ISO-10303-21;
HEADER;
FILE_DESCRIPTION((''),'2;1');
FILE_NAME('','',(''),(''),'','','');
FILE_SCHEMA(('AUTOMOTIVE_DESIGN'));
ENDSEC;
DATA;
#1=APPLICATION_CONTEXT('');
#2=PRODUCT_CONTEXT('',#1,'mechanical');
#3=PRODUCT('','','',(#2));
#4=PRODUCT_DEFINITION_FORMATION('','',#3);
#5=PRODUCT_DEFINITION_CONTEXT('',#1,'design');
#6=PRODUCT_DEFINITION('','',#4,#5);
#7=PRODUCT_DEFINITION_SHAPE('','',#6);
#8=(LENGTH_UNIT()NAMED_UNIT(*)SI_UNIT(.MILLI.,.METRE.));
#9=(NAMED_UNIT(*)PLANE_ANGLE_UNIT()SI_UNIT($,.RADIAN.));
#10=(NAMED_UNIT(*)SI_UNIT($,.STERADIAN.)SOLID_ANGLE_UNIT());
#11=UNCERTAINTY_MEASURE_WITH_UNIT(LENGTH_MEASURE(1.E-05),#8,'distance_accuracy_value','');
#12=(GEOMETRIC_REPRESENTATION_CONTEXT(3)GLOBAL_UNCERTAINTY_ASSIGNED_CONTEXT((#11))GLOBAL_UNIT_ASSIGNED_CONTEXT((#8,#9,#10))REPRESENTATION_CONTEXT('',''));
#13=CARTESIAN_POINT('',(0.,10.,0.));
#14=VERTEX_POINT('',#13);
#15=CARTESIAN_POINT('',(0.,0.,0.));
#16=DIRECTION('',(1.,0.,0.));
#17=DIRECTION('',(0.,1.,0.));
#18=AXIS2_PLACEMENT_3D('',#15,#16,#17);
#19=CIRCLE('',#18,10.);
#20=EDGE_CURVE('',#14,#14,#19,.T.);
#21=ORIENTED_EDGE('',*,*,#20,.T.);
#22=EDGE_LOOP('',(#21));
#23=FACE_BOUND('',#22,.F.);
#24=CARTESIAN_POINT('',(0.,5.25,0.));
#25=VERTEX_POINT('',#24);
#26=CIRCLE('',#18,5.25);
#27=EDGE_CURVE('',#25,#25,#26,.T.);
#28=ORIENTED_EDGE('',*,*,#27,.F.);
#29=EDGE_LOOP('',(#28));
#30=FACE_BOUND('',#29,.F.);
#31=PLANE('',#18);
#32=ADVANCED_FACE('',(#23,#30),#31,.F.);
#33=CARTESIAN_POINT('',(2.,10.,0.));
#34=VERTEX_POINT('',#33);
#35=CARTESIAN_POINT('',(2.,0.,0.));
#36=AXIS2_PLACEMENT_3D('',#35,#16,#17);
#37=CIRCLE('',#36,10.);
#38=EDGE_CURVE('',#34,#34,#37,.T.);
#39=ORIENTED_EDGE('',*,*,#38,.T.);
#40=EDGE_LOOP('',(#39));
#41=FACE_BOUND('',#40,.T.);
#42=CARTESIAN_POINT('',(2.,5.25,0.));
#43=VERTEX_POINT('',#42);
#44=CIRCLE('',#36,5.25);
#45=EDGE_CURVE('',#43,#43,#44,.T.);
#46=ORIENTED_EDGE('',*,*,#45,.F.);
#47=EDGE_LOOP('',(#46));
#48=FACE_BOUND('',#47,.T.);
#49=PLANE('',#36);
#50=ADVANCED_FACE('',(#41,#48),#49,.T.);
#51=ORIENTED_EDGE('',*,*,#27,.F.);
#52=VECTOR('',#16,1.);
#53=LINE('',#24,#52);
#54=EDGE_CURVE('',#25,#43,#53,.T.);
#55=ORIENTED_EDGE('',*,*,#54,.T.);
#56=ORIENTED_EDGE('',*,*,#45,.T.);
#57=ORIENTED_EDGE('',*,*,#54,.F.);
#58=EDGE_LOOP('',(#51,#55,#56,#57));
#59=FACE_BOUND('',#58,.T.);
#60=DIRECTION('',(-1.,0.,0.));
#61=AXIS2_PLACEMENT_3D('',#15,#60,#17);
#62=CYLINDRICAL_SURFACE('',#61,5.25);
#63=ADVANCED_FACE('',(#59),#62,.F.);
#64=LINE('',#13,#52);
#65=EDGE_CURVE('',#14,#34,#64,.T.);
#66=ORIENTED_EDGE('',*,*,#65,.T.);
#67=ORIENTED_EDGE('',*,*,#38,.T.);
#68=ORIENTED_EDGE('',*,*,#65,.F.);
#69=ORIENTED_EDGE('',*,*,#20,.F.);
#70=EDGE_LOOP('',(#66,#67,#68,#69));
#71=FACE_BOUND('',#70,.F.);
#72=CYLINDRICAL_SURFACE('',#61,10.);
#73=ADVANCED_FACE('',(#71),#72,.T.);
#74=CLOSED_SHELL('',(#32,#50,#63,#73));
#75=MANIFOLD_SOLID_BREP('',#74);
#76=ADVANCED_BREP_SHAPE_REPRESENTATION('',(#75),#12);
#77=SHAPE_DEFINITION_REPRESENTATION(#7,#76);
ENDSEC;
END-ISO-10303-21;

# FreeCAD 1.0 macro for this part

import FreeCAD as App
import Part
import Sketcher

doc = App.newDocument("Part")
body = doc.addObject("PartDesign::Body", "Body")

sketch1 = doc.addObject("Sketcher::SketchObject", "Sketch")
body.addObject(sketch1)
sketch1.AttachmentSupport = (doc.YZ_Plane, [""])
sketch1.MapMode = "FlatFace"
sketch1.addGeometry(Part.Circle(App.Vector(0, 0, 0), App.Vector(0, 0, 1), 10), False)
sketch1.addGeometry(Part.Circle(App.Vector(0, 0, 0), App.Vector(0, 0, 1), 5), False)
sketch1.addConstraint(Sketcher.Constraint("Coincident", 0, 3, -1, 1))
sketch1.addConstraint(Sketcher.Constraint("Coincident", 1, 3, -1, 1))
sketch1.addConstraint(Sketcher.Constraint("Diameter", 0, 20.0))
sketch1.addConstraint(Sketcher.Constraint("Diameter", 1, 10.5))
pad1 = doc.addObject("PartDesign::Pad", "Pad")
body.addObject(pad1)
pad1.Profile = sketch1
pad1.Length = 2

doc.recompute()
